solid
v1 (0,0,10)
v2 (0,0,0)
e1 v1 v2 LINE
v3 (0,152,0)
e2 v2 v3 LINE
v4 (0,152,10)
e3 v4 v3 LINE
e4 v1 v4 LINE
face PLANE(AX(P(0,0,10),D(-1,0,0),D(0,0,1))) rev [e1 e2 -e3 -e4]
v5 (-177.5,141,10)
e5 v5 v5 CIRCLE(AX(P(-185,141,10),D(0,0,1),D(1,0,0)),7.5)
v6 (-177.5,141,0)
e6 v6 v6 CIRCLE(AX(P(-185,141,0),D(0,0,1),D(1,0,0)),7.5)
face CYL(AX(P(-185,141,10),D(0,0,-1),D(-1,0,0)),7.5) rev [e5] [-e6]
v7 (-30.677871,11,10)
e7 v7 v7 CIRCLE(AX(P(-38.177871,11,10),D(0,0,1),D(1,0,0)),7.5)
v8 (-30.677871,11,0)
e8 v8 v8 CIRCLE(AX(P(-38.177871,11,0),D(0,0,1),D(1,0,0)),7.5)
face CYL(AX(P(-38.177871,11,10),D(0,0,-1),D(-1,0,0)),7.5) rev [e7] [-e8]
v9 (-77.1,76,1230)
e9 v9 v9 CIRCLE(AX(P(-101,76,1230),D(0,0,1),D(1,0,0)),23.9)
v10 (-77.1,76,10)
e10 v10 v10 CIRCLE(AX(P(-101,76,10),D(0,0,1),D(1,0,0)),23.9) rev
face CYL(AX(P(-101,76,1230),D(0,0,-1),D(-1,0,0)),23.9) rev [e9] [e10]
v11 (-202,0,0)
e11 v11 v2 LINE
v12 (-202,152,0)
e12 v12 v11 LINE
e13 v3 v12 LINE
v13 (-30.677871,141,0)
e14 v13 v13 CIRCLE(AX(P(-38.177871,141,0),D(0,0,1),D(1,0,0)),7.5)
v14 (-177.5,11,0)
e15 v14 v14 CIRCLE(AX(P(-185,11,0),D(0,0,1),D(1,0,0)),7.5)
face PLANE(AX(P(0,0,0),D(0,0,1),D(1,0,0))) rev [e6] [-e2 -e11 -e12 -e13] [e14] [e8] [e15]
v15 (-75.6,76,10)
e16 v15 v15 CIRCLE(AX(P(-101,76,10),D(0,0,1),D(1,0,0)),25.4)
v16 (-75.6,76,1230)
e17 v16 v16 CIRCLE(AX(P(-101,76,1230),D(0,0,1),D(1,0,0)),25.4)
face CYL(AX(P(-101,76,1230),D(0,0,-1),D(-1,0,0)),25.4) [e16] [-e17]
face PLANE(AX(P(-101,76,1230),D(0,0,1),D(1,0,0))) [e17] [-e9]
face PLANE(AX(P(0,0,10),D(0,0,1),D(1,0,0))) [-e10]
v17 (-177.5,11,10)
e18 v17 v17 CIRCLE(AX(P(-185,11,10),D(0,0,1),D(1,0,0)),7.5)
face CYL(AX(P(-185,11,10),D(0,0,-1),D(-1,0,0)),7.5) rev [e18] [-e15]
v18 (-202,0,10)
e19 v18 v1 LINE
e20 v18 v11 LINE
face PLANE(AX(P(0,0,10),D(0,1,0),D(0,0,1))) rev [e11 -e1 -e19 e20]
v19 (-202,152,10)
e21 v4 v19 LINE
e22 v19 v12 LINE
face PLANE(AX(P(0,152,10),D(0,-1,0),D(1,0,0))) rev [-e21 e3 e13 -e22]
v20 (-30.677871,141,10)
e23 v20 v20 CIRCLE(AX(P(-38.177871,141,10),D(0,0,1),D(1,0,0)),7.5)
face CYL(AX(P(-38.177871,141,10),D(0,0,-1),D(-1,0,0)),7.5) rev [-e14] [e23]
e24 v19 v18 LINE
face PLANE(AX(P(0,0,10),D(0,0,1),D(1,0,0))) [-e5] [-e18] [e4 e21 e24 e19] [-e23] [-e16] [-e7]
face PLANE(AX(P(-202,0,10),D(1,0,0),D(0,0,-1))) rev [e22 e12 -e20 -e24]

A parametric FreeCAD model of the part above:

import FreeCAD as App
import Part
import Sketcher


def add_polygon(sketch, points):
    """Adds a closed chain of lines whose ends are joined by coincident constraints."""
    first, n = sketch.GeometryCount, len(points)
    for a, b in zip(points, points[1:] + points[:1]):
        sketch.addGeometry(Part.LineSegment(App.Vector(*a, 0), App.Vector(*b, 0)), False)
    for i in range(n):
        sketch.addConstraint(Sketcher.Constraint("Coincident", first + i, 2, first + (i + 1) % n, 1))

doc = App.newDocument("Part")
body = doc.addObject("PartDesign::Body", "Body")

# Sketch on XY plane
sketch1 = body.newObject("Sketcher::SketchObject", "Sketch")
sketch1.AttachmentSupport = (doc.getObject("XY_Plane"), [""])
sketch1.MapMode = "FlatFace"
add_polygon(sketch1, [(-202, 152), (-202, 0), (0, 0), (0, 152)])  # lines 0-3
sketch1.addGeometry(Part.Circle(App.Vector(-185, 11, 0), App.Vector(0, 0, 1), 8), False)  # 4
sketch1.addGeometry(Part.Circle(App.Vector(-38, 11, 0), App.Vector(0, 0, 1), 8), False)  # 5
sketch1.addGeometry(Part.Circle(App.Vector(-185, 141, 0), App.Vector(0, 0, 1), 8), False)  # 6
sketch1.addGeometry(Part.Circle(App.Vector(-38, 141, 0), App.Vector(0, 0, 1), 8), False)  # 7
sketch1.addConstraint(Sketcher.Constraint("Vertical", 0))
sketch1.addConstraint(Sketcher.Constraint("Horizontal", 1))
sketch1.addConstraint(Sketcher.Constraint("Vertical", 2))
sketch1.addConstraint(Sketcher.Constraint("Horizontal", 3))
sketch1.addConstraint(Sketcher.Constraint("Coincident", 1, 2, -1, 1))
sketch1.addConstraint(Sketcher.Constraint("Equal", 4, 5))
sketch1.addConstraint(Sketcher.Constraint("Equal", 5, 6))
sketch1.addConstraint(Sketcher.Constraint("Equal", 6, 7))
sketch1.addConstraint(Sketcher.Constraint("Horizontal", 4, 3, 5, 3))
sketch1.addConstraint(Sketcher.Constraint("Horizontal", 6, 3, 7, 3))
sketch1.addConstraint(Sketcher.Constraint("Vertical", 4, 3, 6, 3))
sketch1.addConstraint(Sketcher.Constraint("Vertical", 5, 3, 7, 3))
sketch1.addConstraint(Sketcher.Constraint("Diameter", 4, 15.0))
sketch1.addConstraint(Sketcher.Constraint("DistanceX", 1, 1, 1, 2, 202.0))
sketch1.addConstraint(Sketcher.Constraint("DistanceY", 0, 2, 0, 1, 152.0))
sketch1.addConstraint(Sketcher.Constraint("DistanceX", 4, 3, -1, 1, 185.0))
sketch1.addConstraint(Sketcher.Constraint("DistanceY", -1, 1, 4, 3, 11.0))
sketch1.addConstraint(Sketcher.Constraint("DistanceY", -1, 1, 6, 3, 141.0))
sketch1.addConstraint(Sketcher.Constraint("DistanceX", 5, 3, -1, 1, 38.177871))
pad1 = body.newObject("PartDesign::Pad", "Pad")
pad1.Profile = sketch1
pad1.Length = 10

# Sketch on XY plane
sketch2 = body.newObject("Sketcher::SketchObject", "Sketch001")
sketch2.AttachmentSupport = (doc.getObject("XY_Plane"), [""])
sketch2.MapMode = "FlatFace"
sketch2.AttachmentOffset = App.Placement(App.Vector(0, 0, 10), App.Rotation())
sketch2.addGeometry(Part.Circle(App.Vector(-101, 76, 0), App.Vector(0, 0, 1), 25), False)
sketch2.addGeometry(Part.Circle(App.Vector(-101, 76, 0), App.Vector(0, 0, 1), 24), False)
sketch2.addConstraint(Sketcher.Constraint("Coincident", 1, 3, 0, 3))
sketch2.addConstraint(Sketcher.Constraint("Diameter", 0, 50.8))
sketch2.addConstraint(Sketcher.Constraint("Diameter", 1, 47.8))
sketch2.addConstraint(Sketcher.Constraint("DistanceX", 0, 3, -1, 1, 101.0))
sketch2.addConstraint(Sketcher.Constraint("DistanceY", -1, 1, 0, 3, 76.0))
pad2 = body.newObject("PartDesign::Pad", "Pad001")
pad2.Profile = sketch2
pad2.Length = 1220

doc.recompute()
